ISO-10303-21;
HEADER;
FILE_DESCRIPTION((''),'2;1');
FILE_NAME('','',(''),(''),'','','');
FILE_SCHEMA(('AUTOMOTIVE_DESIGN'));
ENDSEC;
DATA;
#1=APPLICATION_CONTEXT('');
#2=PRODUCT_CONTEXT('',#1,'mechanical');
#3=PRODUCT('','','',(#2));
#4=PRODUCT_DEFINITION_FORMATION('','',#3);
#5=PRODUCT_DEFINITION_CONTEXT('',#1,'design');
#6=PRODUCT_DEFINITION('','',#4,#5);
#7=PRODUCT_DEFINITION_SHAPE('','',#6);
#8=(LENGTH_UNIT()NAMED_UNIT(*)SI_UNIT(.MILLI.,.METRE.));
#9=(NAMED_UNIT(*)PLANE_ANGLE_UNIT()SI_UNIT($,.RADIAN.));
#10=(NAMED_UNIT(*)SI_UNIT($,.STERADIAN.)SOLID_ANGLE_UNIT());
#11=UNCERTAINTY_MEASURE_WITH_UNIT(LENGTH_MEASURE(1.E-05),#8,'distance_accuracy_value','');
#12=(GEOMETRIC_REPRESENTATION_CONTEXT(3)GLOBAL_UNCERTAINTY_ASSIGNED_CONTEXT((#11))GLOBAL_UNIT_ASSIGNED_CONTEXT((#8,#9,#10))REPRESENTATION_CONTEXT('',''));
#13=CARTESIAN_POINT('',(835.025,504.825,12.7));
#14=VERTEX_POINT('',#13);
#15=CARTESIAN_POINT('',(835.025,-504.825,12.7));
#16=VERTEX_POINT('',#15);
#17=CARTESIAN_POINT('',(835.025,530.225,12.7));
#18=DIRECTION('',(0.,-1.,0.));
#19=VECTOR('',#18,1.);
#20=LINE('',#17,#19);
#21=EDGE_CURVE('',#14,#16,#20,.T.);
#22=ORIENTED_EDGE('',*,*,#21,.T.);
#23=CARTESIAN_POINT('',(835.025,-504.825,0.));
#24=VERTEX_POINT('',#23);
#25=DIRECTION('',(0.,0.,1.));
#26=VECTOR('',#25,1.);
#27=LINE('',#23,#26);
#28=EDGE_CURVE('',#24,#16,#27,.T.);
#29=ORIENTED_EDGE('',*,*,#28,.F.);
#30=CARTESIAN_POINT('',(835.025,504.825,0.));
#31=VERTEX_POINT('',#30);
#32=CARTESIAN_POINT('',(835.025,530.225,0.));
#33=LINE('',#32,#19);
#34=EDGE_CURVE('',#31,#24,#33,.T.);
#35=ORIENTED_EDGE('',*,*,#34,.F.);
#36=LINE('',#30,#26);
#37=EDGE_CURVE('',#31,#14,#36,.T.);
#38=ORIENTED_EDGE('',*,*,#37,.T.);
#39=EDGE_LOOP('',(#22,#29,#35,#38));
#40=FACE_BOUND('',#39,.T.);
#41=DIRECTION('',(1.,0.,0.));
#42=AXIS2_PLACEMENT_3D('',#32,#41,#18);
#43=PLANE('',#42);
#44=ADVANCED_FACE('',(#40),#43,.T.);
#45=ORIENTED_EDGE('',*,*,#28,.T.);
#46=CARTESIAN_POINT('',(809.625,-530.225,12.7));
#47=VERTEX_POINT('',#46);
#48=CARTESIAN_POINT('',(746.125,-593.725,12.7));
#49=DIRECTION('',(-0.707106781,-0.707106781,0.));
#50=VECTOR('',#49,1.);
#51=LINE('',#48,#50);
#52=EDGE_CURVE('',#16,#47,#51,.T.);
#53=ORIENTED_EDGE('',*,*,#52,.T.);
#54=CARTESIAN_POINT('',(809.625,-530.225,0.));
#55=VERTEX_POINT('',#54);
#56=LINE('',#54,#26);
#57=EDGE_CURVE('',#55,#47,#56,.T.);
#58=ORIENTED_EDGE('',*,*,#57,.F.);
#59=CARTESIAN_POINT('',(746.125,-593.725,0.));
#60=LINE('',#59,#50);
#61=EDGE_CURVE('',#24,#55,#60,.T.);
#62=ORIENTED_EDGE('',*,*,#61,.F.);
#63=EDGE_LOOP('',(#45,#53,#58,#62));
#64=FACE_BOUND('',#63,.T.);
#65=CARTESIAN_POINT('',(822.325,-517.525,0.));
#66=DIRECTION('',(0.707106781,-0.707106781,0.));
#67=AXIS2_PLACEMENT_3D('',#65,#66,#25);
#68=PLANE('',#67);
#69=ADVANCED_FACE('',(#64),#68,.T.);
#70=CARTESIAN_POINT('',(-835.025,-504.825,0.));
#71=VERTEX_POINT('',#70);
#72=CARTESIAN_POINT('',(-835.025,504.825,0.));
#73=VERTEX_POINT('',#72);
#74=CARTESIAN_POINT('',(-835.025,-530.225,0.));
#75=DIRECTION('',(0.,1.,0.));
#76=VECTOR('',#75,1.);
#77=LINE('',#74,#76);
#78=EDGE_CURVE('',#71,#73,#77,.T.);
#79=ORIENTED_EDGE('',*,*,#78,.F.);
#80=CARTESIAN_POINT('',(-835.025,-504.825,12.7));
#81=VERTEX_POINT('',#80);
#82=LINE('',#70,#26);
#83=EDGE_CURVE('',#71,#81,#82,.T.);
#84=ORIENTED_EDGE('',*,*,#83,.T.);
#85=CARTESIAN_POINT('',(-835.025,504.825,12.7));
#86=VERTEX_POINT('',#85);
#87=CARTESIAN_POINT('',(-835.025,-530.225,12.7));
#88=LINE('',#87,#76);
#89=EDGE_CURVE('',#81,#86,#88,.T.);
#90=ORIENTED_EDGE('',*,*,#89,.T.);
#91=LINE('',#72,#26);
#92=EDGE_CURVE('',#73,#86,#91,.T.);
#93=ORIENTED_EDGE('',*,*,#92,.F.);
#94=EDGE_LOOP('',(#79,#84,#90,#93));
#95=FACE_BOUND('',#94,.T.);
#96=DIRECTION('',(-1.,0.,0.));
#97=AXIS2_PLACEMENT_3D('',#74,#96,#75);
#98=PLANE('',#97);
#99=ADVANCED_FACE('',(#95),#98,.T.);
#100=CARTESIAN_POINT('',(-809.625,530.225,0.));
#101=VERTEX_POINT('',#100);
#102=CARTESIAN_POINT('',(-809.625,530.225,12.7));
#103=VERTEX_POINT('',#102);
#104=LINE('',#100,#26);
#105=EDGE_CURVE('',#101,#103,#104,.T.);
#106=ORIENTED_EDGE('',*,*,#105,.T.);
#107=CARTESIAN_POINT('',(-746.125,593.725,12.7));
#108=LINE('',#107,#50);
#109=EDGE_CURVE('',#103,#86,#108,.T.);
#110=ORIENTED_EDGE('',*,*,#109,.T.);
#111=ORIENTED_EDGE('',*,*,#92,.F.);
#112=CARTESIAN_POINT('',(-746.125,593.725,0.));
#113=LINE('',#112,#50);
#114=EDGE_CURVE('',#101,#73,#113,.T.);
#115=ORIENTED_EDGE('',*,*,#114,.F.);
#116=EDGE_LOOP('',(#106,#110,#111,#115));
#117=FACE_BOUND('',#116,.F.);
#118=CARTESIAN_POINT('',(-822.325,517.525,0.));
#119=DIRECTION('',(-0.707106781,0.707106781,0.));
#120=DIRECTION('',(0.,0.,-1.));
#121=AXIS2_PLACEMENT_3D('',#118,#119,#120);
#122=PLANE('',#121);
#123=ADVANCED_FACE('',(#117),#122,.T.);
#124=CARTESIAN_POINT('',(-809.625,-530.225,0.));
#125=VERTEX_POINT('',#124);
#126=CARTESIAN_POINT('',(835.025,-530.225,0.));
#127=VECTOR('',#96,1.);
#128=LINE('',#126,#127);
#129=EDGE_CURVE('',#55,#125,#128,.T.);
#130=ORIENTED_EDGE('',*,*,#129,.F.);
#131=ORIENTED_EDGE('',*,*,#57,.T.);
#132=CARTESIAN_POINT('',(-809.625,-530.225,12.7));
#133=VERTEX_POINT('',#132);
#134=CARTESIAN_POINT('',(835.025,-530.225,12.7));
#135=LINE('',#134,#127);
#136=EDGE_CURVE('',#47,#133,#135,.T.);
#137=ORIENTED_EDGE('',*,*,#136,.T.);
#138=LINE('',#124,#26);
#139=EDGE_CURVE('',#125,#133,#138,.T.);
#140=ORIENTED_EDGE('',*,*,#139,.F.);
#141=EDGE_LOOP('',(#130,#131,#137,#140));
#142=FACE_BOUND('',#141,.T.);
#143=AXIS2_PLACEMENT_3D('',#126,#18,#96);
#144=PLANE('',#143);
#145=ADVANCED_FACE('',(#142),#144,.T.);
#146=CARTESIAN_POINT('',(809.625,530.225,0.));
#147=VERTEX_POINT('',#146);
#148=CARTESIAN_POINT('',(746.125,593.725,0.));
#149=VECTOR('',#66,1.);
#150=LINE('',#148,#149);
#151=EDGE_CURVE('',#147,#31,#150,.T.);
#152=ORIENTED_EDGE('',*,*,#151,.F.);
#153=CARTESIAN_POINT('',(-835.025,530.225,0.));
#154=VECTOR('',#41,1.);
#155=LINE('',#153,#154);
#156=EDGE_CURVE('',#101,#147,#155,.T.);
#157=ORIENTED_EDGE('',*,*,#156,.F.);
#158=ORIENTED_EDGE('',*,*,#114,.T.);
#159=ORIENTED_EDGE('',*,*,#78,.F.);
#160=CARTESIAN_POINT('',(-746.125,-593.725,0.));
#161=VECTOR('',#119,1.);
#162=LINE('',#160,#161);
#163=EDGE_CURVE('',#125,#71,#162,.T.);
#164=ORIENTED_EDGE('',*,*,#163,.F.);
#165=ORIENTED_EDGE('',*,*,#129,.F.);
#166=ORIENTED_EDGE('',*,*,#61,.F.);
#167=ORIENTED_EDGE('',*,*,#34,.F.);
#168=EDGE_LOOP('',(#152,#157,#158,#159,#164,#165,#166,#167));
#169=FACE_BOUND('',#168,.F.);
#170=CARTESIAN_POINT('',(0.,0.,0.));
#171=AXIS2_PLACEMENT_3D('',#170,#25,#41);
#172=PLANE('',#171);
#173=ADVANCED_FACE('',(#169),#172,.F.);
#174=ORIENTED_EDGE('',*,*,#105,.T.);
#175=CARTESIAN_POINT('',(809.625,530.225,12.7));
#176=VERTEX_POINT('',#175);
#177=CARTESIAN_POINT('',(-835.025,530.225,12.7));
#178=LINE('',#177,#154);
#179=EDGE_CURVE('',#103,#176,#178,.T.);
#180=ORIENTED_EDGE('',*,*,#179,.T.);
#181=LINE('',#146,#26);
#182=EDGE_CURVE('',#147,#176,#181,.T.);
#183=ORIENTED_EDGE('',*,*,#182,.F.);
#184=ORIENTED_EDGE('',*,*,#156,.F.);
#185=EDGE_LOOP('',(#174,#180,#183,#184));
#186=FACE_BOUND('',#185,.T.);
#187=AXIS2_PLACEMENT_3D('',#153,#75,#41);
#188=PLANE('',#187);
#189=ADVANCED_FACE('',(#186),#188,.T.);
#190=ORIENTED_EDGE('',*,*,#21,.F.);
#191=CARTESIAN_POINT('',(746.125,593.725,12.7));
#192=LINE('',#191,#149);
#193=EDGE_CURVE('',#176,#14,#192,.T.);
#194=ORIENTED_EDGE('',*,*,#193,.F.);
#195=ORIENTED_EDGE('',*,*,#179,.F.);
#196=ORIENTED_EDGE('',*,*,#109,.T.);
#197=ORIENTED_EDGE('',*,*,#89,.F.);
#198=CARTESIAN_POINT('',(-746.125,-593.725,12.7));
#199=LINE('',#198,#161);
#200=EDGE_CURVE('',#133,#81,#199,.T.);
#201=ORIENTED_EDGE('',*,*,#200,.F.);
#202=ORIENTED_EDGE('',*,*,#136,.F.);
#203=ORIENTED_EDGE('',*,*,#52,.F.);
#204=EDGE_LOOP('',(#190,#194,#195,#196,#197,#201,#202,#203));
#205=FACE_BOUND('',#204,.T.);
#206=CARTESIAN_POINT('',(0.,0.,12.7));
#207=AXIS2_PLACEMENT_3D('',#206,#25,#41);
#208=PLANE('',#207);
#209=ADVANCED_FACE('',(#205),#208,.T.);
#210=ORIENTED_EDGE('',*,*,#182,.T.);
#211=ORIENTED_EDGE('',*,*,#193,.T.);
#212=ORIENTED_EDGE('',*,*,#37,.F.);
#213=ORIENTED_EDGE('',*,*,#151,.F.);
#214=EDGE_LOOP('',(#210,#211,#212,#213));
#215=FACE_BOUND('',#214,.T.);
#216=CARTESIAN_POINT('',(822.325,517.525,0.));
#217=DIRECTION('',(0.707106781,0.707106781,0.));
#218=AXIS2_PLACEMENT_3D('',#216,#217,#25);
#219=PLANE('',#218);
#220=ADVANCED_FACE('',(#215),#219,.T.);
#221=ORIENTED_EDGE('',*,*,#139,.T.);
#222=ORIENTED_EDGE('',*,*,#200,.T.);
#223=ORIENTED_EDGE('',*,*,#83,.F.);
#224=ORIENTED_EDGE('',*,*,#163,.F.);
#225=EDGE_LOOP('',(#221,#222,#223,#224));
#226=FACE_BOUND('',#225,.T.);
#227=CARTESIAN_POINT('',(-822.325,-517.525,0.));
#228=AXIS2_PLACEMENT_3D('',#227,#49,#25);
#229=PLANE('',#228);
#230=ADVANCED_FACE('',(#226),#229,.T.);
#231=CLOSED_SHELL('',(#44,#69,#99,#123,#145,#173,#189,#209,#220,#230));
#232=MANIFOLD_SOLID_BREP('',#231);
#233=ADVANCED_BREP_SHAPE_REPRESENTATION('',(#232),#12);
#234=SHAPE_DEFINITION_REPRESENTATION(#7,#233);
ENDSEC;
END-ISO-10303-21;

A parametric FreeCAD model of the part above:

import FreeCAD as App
import Part
import Sketcher
Q = App.Units.Quantity


def edges_at(feature, points):
    """Names of the edges that pass closest to the given points."""
    edges = feature.Shape.Edges
    near = lambda p: min(range(len(edges)), key=lambda i: edges[i].distToShape(Part.Vertex(*p))[0])
    return sorted({f"Edge{near(p) + 1}" for p in points})

doc = App.newDocument("Part")
params = doc.addObject("Spreadsheet::Sheet", "Params")
for row, (alias, value) in enumerate([
    ("sketch1_width", "65.75 in"),
    ("sketch1_height", "41.75 in"),
    ("pad1_length", "0.5 in"),
    ("chamfer_size", "1 in"),
], start=1):
    params.set(f"A{row}", alias)
    params.set(f"B{row}", "=" + value)
    params.setAlias(f"B{row}", alias)

body = doc.addObject("PartDesign::Body", "Body")

# Sketch on XY plane
sketch1 = doc.addObject("Sketcher::SketchObject", "Sketch")
body.addObject(sketch1)
sketch1.AttachmentSupport = (doc.XY_Plane, [""])
sketch1.MapMode = "FlatFace"
sketch1.addGeometry([
    Part.LineSegment(App.Vector(835, 530, 0), App.Vector(-835, 530, 0)),
    Part.LineSegment(App.Vector(-835, 530, 0), App.Vector(-835, -530, 0)),
    Part.LineSegment(App.Vector(-835, -530, 0), App.Vector(835, -530, 0)),
    Part.LineSegment(App.Vector(835, -530, 0), App.Vector(835, 530, 0)),
], False)
sketch1.addConstraint([
    Sketcher.Constraint("Coincident", 0, 2, 1, 1),
    Sketcher.Constraint("Coincident", 1, 2, 2, 1),
    Sketcher.Constraint("Coincident", 2, 2, 3, 1),
    Sketcher.Constraint("Coincident", 3, 2, 0, 1),
    Sketcher.Constraint("Horizontal", 0),
    Sketcher.Constraint("Vertical", 1),
    Sketcher.Constraint("Horizontal", 2),
    Sketcher.Constraint("Vertical", 3),
    Sketcher.Constraint("Symmetric", 0, 2, 2, 2, -1, 1),
    Sketcher.Constraint("DistanceX", 0, 2, 0, 1, Q("65.75 in")),
    Sketcher.Constraint("DistanceY", 1, 2, 1, 1, Q("41.75 in")),
])
sketch1.setExpression("Constraints[9]", "Params.sketch1_width")
sketch1.setExpression("Constraints[10]", "Params.sketch1_height")
pad1 = doc.addObject("PartDesign::Pad", "Pad")
body.addObject(pad1)
pad1.Profile = sketch1
pad1.setExpression("Length", "Params.pad1_length")
doc.recompute()

chamfer = doc.addObject("PartDesign::Chamfer", "Chamfer")
body.addObject(chamfer)
chamfer.Base = (pad1, edges_at(pad1, [
    (-835.025, -530.225, 6.35),
    (-835.025, 530.225, 6.35),
    (835.025, 530.225, 6.35),
    (835.025, -530.225, 6.35),
]))
chamfer.setExpression("Size", "Params.chamfer_size")

doc.recompute()
